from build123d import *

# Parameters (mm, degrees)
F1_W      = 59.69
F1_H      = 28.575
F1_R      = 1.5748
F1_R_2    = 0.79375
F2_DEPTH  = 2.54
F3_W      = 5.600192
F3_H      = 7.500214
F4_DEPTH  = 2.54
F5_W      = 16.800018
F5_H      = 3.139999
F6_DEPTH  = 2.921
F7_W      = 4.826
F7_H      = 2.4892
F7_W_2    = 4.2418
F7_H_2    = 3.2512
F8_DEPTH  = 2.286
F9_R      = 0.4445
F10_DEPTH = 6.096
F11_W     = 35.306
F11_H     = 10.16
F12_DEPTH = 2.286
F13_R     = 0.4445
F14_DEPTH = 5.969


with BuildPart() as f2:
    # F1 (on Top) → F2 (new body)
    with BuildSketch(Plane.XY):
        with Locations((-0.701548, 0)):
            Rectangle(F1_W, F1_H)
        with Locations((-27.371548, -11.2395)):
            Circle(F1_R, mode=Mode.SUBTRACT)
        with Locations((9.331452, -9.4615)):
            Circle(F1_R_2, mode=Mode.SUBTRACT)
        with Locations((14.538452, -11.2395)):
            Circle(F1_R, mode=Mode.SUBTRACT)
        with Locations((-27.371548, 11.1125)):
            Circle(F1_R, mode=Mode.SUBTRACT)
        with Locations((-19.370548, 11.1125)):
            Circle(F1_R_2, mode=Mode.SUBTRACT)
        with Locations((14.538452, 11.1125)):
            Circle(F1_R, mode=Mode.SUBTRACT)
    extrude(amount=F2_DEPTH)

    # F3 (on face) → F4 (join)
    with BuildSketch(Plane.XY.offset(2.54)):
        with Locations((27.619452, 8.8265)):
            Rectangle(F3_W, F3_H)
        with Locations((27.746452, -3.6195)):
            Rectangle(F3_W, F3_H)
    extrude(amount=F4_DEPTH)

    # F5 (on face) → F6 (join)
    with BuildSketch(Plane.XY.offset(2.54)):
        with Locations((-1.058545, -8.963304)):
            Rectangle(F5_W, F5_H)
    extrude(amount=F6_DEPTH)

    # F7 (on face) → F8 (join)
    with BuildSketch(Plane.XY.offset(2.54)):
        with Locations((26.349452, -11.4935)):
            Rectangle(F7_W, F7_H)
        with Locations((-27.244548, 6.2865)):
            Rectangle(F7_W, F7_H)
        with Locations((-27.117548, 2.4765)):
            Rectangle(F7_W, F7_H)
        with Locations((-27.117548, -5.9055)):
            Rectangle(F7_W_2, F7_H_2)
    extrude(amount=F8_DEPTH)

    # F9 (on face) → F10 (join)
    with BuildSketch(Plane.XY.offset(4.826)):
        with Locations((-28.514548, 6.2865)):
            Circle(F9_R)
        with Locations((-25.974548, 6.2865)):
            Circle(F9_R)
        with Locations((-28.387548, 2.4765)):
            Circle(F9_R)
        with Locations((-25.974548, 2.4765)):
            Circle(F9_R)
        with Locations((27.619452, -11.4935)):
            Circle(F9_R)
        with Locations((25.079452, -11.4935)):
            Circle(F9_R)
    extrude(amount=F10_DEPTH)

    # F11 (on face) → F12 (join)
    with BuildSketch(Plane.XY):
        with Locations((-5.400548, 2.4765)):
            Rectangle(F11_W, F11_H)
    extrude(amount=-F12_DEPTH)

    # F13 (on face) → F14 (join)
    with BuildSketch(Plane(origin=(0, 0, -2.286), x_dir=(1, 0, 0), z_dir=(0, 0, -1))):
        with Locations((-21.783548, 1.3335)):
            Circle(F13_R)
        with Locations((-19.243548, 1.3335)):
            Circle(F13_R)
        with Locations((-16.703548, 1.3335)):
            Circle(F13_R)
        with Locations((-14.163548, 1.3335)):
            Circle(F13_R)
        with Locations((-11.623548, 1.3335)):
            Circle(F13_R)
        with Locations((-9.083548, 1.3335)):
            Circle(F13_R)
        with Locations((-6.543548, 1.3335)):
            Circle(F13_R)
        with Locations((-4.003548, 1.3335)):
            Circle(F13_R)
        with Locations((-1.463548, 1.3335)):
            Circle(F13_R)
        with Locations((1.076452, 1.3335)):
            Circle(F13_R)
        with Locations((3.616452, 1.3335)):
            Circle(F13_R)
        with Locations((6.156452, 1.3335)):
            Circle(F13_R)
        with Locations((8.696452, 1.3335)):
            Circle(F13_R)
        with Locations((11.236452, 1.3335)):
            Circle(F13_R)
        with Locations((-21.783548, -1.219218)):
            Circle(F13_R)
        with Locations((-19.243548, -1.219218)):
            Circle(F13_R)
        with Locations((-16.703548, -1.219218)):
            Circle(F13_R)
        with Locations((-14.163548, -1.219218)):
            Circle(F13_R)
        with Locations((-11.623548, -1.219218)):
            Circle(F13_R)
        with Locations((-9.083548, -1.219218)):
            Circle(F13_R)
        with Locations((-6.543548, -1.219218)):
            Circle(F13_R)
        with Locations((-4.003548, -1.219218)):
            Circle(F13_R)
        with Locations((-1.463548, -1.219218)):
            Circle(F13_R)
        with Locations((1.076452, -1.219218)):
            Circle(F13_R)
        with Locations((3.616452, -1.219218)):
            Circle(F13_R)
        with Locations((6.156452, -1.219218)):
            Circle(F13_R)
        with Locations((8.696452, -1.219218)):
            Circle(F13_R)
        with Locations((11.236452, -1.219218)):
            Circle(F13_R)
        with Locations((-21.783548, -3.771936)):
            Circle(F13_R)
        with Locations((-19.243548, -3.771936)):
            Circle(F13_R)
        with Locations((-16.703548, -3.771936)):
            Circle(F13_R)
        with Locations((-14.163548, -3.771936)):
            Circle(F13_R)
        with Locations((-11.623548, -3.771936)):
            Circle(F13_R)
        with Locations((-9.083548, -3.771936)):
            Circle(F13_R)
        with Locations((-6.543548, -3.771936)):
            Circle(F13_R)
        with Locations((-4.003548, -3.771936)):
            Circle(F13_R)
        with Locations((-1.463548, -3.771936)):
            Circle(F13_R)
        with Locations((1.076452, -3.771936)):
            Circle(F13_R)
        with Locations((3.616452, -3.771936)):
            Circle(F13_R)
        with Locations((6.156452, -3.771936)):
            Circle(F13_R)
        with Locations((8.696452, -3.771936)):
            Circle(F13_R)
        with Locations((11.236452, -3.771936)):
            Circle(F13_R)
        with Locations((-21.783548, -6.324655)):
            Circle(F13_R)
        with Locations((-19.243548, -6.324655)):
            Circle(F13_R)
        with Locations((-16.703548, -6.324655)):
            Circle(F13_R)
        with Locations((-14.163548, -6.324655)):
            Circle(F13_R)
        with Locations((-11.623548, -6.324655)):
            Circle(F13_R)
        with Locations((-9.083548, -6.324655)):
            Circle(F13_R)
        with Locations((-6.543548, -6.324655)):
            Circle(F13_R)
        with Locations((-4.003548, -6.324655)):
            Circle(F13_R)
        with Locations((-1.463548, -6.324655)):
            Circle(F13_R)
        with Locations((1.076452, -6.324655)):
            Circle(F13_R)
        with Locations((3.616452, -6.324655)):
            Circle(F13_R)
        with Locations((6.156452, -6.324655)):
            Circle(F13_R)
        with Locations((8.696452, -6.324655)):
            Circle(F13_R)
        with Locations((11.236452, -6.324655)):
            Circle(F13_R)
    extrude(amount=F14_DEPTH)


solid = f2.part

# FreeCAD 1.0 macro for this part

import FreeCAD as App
import Part
import Sketcher
Q = App.Units.Quantity

doc = App.newDocument("Part")
params = doc.addObject("Spreadsheet::Sheet", "Params")
for row, (alias, value) in enumerate([
    ("sketch1_diameter", "0.124 in"),
    ("sketch1_diameter2", "0.0625 in"),
    ("sketch1_width", "2.35 in"),
    ("sketch1_height", "1.125 in"),
    ("pad1_length", "0.1 in"),
    ("pad2_length", "0.1 in"),
    ("pad3_length", "0.115 in"),
    ("sketch4_width", "0.19 in"),
    ("sketch4_width2", "0.167 in"),
    ("sketch4_height", "0.098 in"),
    ("sketch4_height2", "0.128 in"),
    ("pad4_length", "0.09 in"),
    ("sketch5_diameter", "0.035 in"),
    ("pad5_length", "0.24 in"),
    ("sketch6_height", "0.4 in"),
    ("sketch6_width", "1.39 in"),
    ("pad6_length", "0.09 in"),
    ("sketch7_diameter", "0.035 in"),
    ("pad7_length", "0.235 in"),
], start=1):
    params.set(f"A{row}", alias)
    params.set(f"B{row}", "=" + value)
    params.setAlias(f"B{row}", alias)

body = doc.addObject("PartDesign::Body", "Body")

sketch1 = doc.addObject("Sketcher::SketchObject", "Sketch")
body.addObject(sketch1)
sketch1.AttachmentSupport = (doc.XY_Plane, [""])
sketch1.MapMode = "FlatFace"
sketch1.addGeometry(Part.LineSegment(App.Vector(-30.5, 14.3, 0), App.Vector(-30.5, -14.3, 0)), False)
sketch1.addGeometry(Part.LineSegment(App.Vector(-30.5, -14.3, 0), App.Vector(29.1, -14.3, 0)), False)
sketch1.addGeometry(Part.LineSegment(App.Vector(29.1, -14.3, 0), App.Vector(29.1, 14.3, 0)), False)
sketch1.addGeometry(Part.LineSegment(App.Vector(29.1, 14.3, 0), App.Vector(-30.5, 14.3, 0)), False)
sketch1.addGeometry(Part.Circle(App.Vector(-27.4, -11.2, 0), App.Vector(0, 0, 1), 1.6), False)
sketch1.addGeometry(Part.Circle(App.Vector(14.5, -11.2, 0), App.Vector(0, 0, 1), 1.6), False)
sketch1.addGeometry(Part.Circle(App.Vector(9.3, -9.5, 0), App.Vector(0, 0, 1), 0.8), False)
sketch1.addGeometry(Part.Circle(App.Vector(-27.4, 11.1, 0), App.Vector(0, 0, 1), 1.6), False)
sketch1.addGeometry(Part.Circle(App.Vector(-19.4, 11.1, 0), App.Vector(0, 0, 1), 0.8), False)
sketch1.addGeometry(Part.Circle(App.Vector(14.5, 11.1, 0), App.Vector(0, 0, 1), 1.6), False)
sketch1.addConstraint(Sketcher.Constraint("Coincident", 0, 2, 1, 1))
sketch1.addConstraint(Sketcher.Constraint("Coincident", 1, 2, 2, 1))
sketch1.addConstraint(Sketcher.Constraint("Coincident", 2, 2, 3, 1))
sketch1.addConstraint(Sketcher.Constraint("Coincident", 3, 2, 0, 1))
sketch1.addConstraint(Sketcher.Constraint("Vertical", 0))
sketch1.addConstraint(Sketcher.Constraint("Horizontal", 1))
sketch1.addConstraint(Sketcher.Constraint("Vertical", 2))
sketch1.addConstraint(Sketcher.Constraint("Horizontal", 3))
sketch1.addConstraint(Sketcher.Constraint("Equal", 4, 5))
sketch1.addConstraint(Sketcher.Constraint("Equal", 5, 7))
sketch1.addConstraint(Sketcher.Constraint("Equal", 6, 8))
sketch1.addConstraint(Sketcher.Constraint("Equal", 7, 9))
sketch1.addConstraint(Sketcher.Constraint("Horizontal", 4, 3, 5, 3))
sketch1.addConstraint(Sketcher.Constraint("Horizontal", 7, 3, 8, 3))
sketch1.addConstraint(Sketcher.Constraint("Horizontal", 8, 3, 9, 3))
sketch1.addConstraint(Sketcher.Constraint("Vertical", 4, 3, 7, 3))
sketch1.addConstraint(Sketcher.Constraint("Vertical", 5, 3, 9, 3))
sketch1.addConstraint(Sketcher.Constraint("Diameter", 4, Q("0.124 in")))
sketch1.addConstraint(Sketcher.Constraint("Diameter", 6, Q("0.0625 in")))
sketch1.addConstraint(Sketcher.Constraint("DistanceY", 0, 2, 7, 3, Q("1 in")))
sketch1.addConstraint(Sketcher.Constraint("DistanceX", 1, 1, 1, 2, Q("2.35 in")))
sketch1.addConstraint(Sketcher.Constraint("DistanceY", 0, 2, 0, 1, Q("1.125 in")))
sketch1.addConstraint(Sketcher.Constraint("DistanceX", 4, 3, 5, 3, Q("1.65 in")))
sketch1.addConstraint(Sketcher.Constraint("DistanceY", 5, 3, 6, 3, Q("0.07 in")))
sketch1.addConstraint(Sketcher.Constraint("DistanceY", 4, 3, 7, 3, Q("0.88 in")))
sketch1.addConstraint(Sketcher.Constraint("DistanceX", 8, 3, 6, 3, Q("1.13 in")))
sketch1.addConstraint(Sketcher.Constraint("DistanceX", 0, 2, 8, 3, Q("0.44 in")))
sketch1.addConstraint(Sketcher.Constraint("DistanceY", -1, 1, 7, 3, Q("0.4375 in")))
sketch1.addConstraint(Sketcher.Constraint("DistanceX", 6, 3, 5, 3, Q("0.205 in")))
sketch1.addConstraint(Sketcher.Constraint("DistanceX", 4, 3, -1, 1, 27.371548))
sketch1.setExpression("Constraints[17]", "Params.sketch1_diameter")
sketch1.setExpression("Constraints[18]", "Params.sketch1_diameter2")
sketch1.setExpression("Constraints[20]", "Params.sketch1_width")
sketch1.setExpression("Constraints[21]", "Params.sketch1_height")
pad1 = doc.addObject("PartDesign::Pad", "Pad")
body.addObject(pad1)
pad1.Profile = sketch1
pad1.setExpression("Length", "Params.pad1_length")

sketch2 = doc.addObject("Sketcher::SketchObject", "Sketch001")
body.addObject(sketch2)
sketch2.AttachmentSupport = (doc.XY_Plane, [""])
sketch2.MapMode = "FlatFace"
sketch2.AttachmentOffset = App.Placement(App.Vector(0, 0, 0.1 * 25.4), App.Rotation())
sketch2.addGeometry(Part.LineSegment(App.Vector(25, 13, 0), App.Vector(25, 5, 0)), False)
sketch2.addGeometry(Part.LineSegment(App.Vector(25, 5, 0), App.Vector(30, 5, 0)), False)
sketch2.addGeometry(Part.LineSegment(App.Vector(30, 5, 0), App.Vector(30, 13, 0)), False)
sketch2.addGeometry(Part.LineSegment(App.Vector(30, 13, 0), App.Vector(25, 13, 0)), False)
sketch2.addGeometry(Part.LineSegment(App.Vector(25, 0, 0), App.Vector(25, -7, 0)), False)
sketch2.addGeometry(Part.LineSegment(App.Vector(25, -7, 0), App.Vector(31, -7, 0)), False)
sketch2.addGeometry(Part.LineSegment(App.Vector(31, -7, 0), App.Vector(31, 0, 0)), False)
sketch2.addGeometry(Part.LineSegment(App.Vector(31, 0, 0), App.Vector(25, 0, 0)), False)
sketch2.addConstraint(Sketcher.Constraint("Coincident", 0, 2, 1, 1))
sketch2.addConstraint(Sketcher.Constraint("Coincident", 1, 2, 2, 1))
sketch2.addConstraint(Sketcher.Constraint("Coincident", 2, 2, 3, 1))
sketch2.addConstraint(Sketcher.Constraint("Coincident", 3, 2, 0, 1))
sketch2.addConstraint(Sketcher.Constraint("Coincident", 4, 2, 5, 1))
sketch2.addConstraint(Sketcher.Constraint("Coincident", 5, 2, 6, 1))
sketch2.addConstraint(Sketcher.Constraint("Coincident", 6, 2, 7, 1))
sketch2.addConstraint(Sketcher.Constraint("Coincident", 7, 2, 4, 1))
sketch2.addConstraint(Sketcher.Constraint("Vertical", 0))
sketch2.addConstraint(Sketcher.Constraint("Horizontal", 1))
sketch2.addConstraint(Sketcher.Constraint("Vertical", 2))
sketch2.addConstraint(Sketcher.Constraint("Horizontal", 3))
sketch2.addConstraint(Sketcher.Constraint("Vertical", 4))
sketch2.addConstraint(Sketcher.Constraint("Horizontal", 5))
sketch2.addConstraint(Sketcher.Constraint("Vertical", 6))
sketch2.addConstraint(Sketcher.Constraint("Horizontal", 7))
sketch2.addConstraint(Sketcher.Constraint("Equal", 3, 5))
sketch2.addConstraint(Sketcher.Constraint("Equal", 2, 4))
sketch2.addConstraint(Sketcher.Constraint("DistanceY", 4, 2, 0, 2, Q("0.49 in")))
sketch2.addConstraint(Sketcher.Constraint("DistanceX", 0, 2, 4, 2, Q("0.005 in")))
sketch2.addConstraint(Sketcher.Constraint("DistanceX", 1, 1, 1, 2, 5.600192))
sketch2.addConstraint(Sketcher.Constraint("DistanceY", 0, 2, 0, 1, 7.500214))
sketch2.addConstraint(Sketcher.Constraint("DistanceX", -1, 1, 5, 2, 30.546548))
sketch2.addConstraint(Sketcher.Constraint("DistanceY", -1, 1, 0, 2, 5.076393))
pad2 = doc.addObject("PartDesign::Pad", "Pad001")
body.addObject(pad2)
pad2.Profile = sketch2
pad2.setExpression("Length", "Params.pad2_length")

sketch3 = doc.addObject("Sketcher::SketchObject", "Sketch002")
body.addObject(sketch3)
sketch3.AttachmentSupport = (doc.XY_Plane, [""])
sketch3.MapMode = "FlatFace"
sketch3.AttachmentOffset = App.Placement(App.Vector(0, 0, 0.1 * 25.4), App.Rotation())
sketch3.addGeometry(Part.LineSegment(App.Vector(-9.5, -7.4, 0), App.Vector(-9.5, -10.5, 0)), False)
sketch3.addGeometry(Part.LineSegment(App.Vector(-9.5, -10.5, 0), App.Vector(7.3, -10.5, 0)), False)
sketch3.addGeometry(Part.LineSegment(App.Vector(7.3, -10.5, 0), App.Vector(7.3, -7.4, 0)), False)
sketch3.addGeometry(Part.LineSegment(App.Vector(7.3, -7.4, 0), App.Vector(-9.5, -7.4, 0)), False)
sketch3.addConstraint(Sketcher.Constraint("Coincident", 0, 2, 1, 1))
sketch3.addConstraint(Sketcher.Constraint("Coincident", 1, 2, 2, 1))
sketch3.addConstraint(Sketcher.Constraint("Coincident", 2, 2, 3, 1))
sketch3.addConstraint(Sketcher.Constraint("Coincident", 3, 2, 0, 1))
sketch3.addConstraint(Sketcher.Constraint("Vertical", 0))
sketch3.addConstraint(Sketcher.Constraint("Horizontal", 1))
sketch3.addConstraint(Sketcher.Constraint("Vertical", 2))
sketch3.addConstraint(Sketcher.Constraint("Horizontal", 3))
sketch3.addConstraint(Sketcher.Constraint("DistanceY", 0, 2, 0, 1, 3.139999))
sketch3.addConstraint(Sketcher.Constraint("DistanceX", 1, 1, 1, 2, 16.800018))
sketch3.addConstraint(Sketcher.Constraint("DistanceX", 0, 2, -1, 1, 9.458554))
sketch3.addConstraint(Sketcher.Constraint("DistanceY", 0, 2, -1, 1, 10.533304))
pad3 = doc.addObject("PartDesign::Pad", "Pad002")
body.addObject(pad3)
pad3.Profile = sketch3
pad3.setExpression("Length", "Params.pad3_length")

sketch4 = doc.addObject("Sketcher::SketchObject", "Sketch003")
body.addObject(sketch4)
sketch4.AttachmentSupport = (doc.XY_Plane, [""])
sketch4.MapMode = "FlatFace"
sketch4.AttachmentOffset = App.Placement(App.Vector(0, 0, 0.1 * 25.4), App.Rotation())
sketch4.addGeometry(Part.LineSegment(App.Vector(23.9, -10.2, 0), App.Vector(23.9, -12.7, 0)), False)
sketch4.addGeometry(Part.LineSegment(App.Vector(23.9, -12.7, 0), App.Vector(28.8, -12.7, 0)), False)
sketch4.addGeometry(Part.LineSegment(App.Vector(28.8, -12.7, 0), App.Vector(28.8, -10.2, 0)), False)
sketch4.addGeometry(Part.LineSegment(App.Vector(28.8, -10.2, 0), App.Vector(23.9, -10.2, 0)), False)
sketch4.addGeometry(Part.LineSegment(App.Vector(-29.7, 7.5, 0), App.Vector(-29.7, 5, 0)), False)
sketch4.addGeometry(Part.LineSegment(App.Vector(-29.7, 5, 0), App.Vector(-24.8, 5, 0)), False)
sketch4.addGeometry(Part.LineSegment(App.Vector(-24.8, 5, 0), App.Vector(-24.8, 7.5, 0)), False)
sketch4.addGeometry(Part.LineSegment(App.Vector(-24.8, 7.5, 0), App.Vector(-29.7, 7.5, 0)), False)
sketch4.addGeometry(Part.LineSegment(App.Vector(-29.5, 3.7, 0), App.Vector(-29.5, 1.2, 0)), False)
sketch4.addGeometry(Part.LineSegment(App.Vector(-29.5, 1.2, 0), App.Vector(-24.7, 1.2, 0)), False)
sketch4.addGeometry(Part.LineSegment(App.Vector(-24.7, 1.2, 0), App.Vector(-24.7, 3.7, 0)), False)
sketch4.addGeometry(Part.LineSegment(App.Vector(-24.7, 3.7, 0), App.Vector(-29.5, 3.7, 0)), False)
sketch4.addGeometry(Part.LineSegment(App.Vector(-29.2, -4.3, 0), App.Vector(-29.2, -7.5, 0)), False)
sketch4.addGeometry(Part.LineSegment(App.Vector(-29.2, -7.5, 0), App.Vector(-25, -7.5, 0)), False)
sketch4.addGeometry(Part.LineSegment(App.Vector(-25, -7.5, 0), App.Vector(-25, -4.3, 0)), False)
sketch4.addGeometry(Part.LineSegment(App.Vector(-25, -4.3, 0), App.Vector(-29.2, -4.3, 0)), False)
sketch4.addConstraint(Sketcher.Constraint("Coincident", 0, 2, 1, 1))
sketch4.addConstraint(Sketcher.Constraint("Coincident", 1, 2, 2, 1))
sketch4.addConstraint(Sketcher.Constraint("Coincident", 2, 2, 3, 1))
sketch4.addConstraint(Sketcher.Constraint("Coincident", 3, 2, 0, 1))
sketch4.addConstraint(Sketcher.Constraint("Coincident", 4, 2, 5, 1))
sketch4.addConstraint(Sketcher.Constraint("Coincident", 5, 2, 6, 1))
sketch4.addConstraint(Sketcher.Constraint("Coincident", 6, 2, 7, 1))
sketch4.addConstraint(Sketcher.Constraint("Coincident", 7, 2, 4, 1))
sketch4.addConstraint(Sketcher.Constraint("Coincident", 8, 2, 9, 1))
sketch4.addConstraint(Sketcher.Constraint("Coincident", 9, 2, 10, 1))
sketch4.addConstraint(Sketcher.Constraint("Coincident", 10, 2, 11, 1))
sketch4.addConstraint(Sketcher.Constraint("Coincident", 11, 2, 8, 1))
sketch4.addConstraint(Sketcher.Constraint("Coincident", 12, 2, 13, 1))
sketch4.addConstraint(Sketcher.Constraint("Coincident", 13, 2, 14, 1))
sketch4.addConstraint(Sketcher.Constraint("Coincident", 14, 2, 15, 1))
sketch4.addConstraint(Sketcher.Constraint("Coincident", 15, 2, 12, 1))
sketch4.addConstraint(Sketcher.Constraint("Vertical", 0))
sketch4.addConstraint(Sketcher.Constraint("Horizontal", 1))
sketch4.addConstraint(Sketcher.Constraint("Vertical", 2))
sketch4.addConstraint(Sketcher.Constraint("Horizontal", 3))
sketch4.addConstraint(Sketcher.Constraint("Vertical", 4))
sketch4.addConstraint(Sketcher.Constraint("Horizontal", 5))
sketch4.addConstraint(Sketcher.Constraint("Vertical", 6))
sketch4.addConstraint(Sketcher.Constraint("Horizontal", 7))
sketch4.addConstraint(Sketcher.Constraint("Vertical", 8))
sketch4.addConstraint(Sketcher.Constraint("Horizontal", 9))
sketch4.addConstraint(Sketcher.Constraint("Vertical", 10))
sketch4.addConstraint(Sketcher.Constraint("Horizontal", 11))
sketch4.addConstraint(Sketcher.Constraint("Vertical", 12))
sketch4.addConstraint(Sketcher.Constraint("Horizontal", 13))
sketch4.addConstraint(Sketcher.Constraint("Vertical", 14))
sketch4.addConstraint(Sketcher.Constraint("Horizontal", 15))
sketch4.addConstraint(Sketcher.Constraint("Equal", 3, 5))
sketch4.addConstraint(Sketcher.Constraint("Equal", 7, 9))
sketch4.addConstraint(Sketcher.Constraint("Equal", 2, 4))
sketch4.addConstraint(Sketcher.Constraint("Equal", 6, 8))
sketch4.addConstraint(Sketcher.Constraint("DistanceX", 1, 1, 1, 2, Q("0.19 in")))
sketch4.addConstraint(Sketcher.Constraint("DistanceY", 0, 2, 4, 2, Q("0.7 in")))
sketch4.addConstraint(Sketcher.Constraint("DistanceX", 4, 2, 2, 2, Q("2.3 in")))
sketch4.addConstraint(Sketcher.Constraint("DistanceX", 13, 1, 13, 2, Q("0.167 in")))
sketch4.addConstraint(Sketcher.Constraint("DistanceY", 0, 2, 0, 1, Q("0.098 in")))
sketch4.addConstraint(Sketcher.Constraint("DistanceY", 12, 2, 12, 1, Q("0.128 in")))
sketch4.addConstraint(Sketcher.Constraint("DistanceY", 8, 2, 4, 2, Q("0.15 in")))
sketch4.addConstraint(Sketcher.Constraint("DistanceX", 4, 2, 8, 2, Q("0.005 in")))
sketch4.addConstraint(Sketcher.Constraint("DistanceY", 12, 2, 8, 2, Q("0.345 in")))
sketch4.addConstraint(Sketcher.Constraint("DistanceY", 0, 2, -1, 1, Q("0.5015 in")))
sketch4.addConstraint(Sketcher.Constraint("DistanceX", 8, 2, 12, 2, Q("0.0115 in")))
sketch4.addConstraint(Sketcher.Constraint("DistanceX", -1, 1, 0, 2, 23.936452))
sketch4.setExpression("Constraints[36]", "Params.sketch4_width")
sketch4.setExpression("Constraints[39]", "Params.sketch4_width2")
sketch4.setExpression("Constraints[40]", "Params.sketch4_height")
sketch4.setExpression("Constraints[41]", "Params.sketch4_height2")
pad4 = doc.addObject("PartDesign::Pad", "Pad003")
body.addObject(pad4)
pad4.Profile = sketch4
pad4.setExpression("Length", "Params.pad4_length")

sketch5 = doc.addObject("Sketcher::SketchObject", "Sketch004")
body.addObject(sketch5)
sketch5.AttachmentSupport = (doc.XY_Plane, [""])
sketch5.MapMode = "FlatFace"
sketch5.AttachmentOffset = App.Placement(App.Vector(0, 0, 0.19 * 25.4), App.Rotation())
sketch5.addGeometry(Part.Circle(App.Vector(-28.51, 6.29, 0), App.Vector(0, 0, 1), 0.44), False)
sketch5.addGeometry(Part.Circle(App.Vector(-25.97, 6.29, 0), App.Vector(0, 0, 1), 0.44), False)
sketch5.addGeometry(Part.Circle(App.Vector(-28.39, 2.48, 0), App.Vector(0, 0, 1), 0.44), False)
sketch5.addGeometry(Part.Circle(App.Vector(-25.97, 2.48, 0), App.Vector(0, 0, 1), 0.44), False)
sketch5.addGeometry(Part.Circle(App.Vector(27.62, -11.49, 0), App.Vector(0, 0, 1), 0.44), False)
sketch5.addGeometry(Part.Circle(App.Vector(25.08, -11.49, 0), App.Vector(0, 0, 1), 0.44), False)
sketch5.addConstraint(Sketcher.Constraint("Equal", 0, 1))
sketch5.addConstraint(Sketcher.Constraint("Equal", 1, 2))
sketch5.addConstraint(Sketcher.Constraint("Equal", 2, 3))
sketch5.addConstraint(Sketcher.Constraint("Equal", 3, 4))
sketch5.addConstraint(Sketcher.Constraint("Equal", 4, 5))
sketch5.addConstraint(Sketcher.Constraint("Horizontal", 0, 3, 1, 3))
sketch5.addConstraint(Sketcher.Constraint("Horizontal", 2, 3, 3, 3))
sketch5.addConstraint(Sketcher.Constraint("Horizontal", 4, 3, 5, 3))
sketch5.addConstraint(Sketcher.Constraint("Vertical", 1, 3, 3, 3))
sketch5.addConstraint(Sketcher.Constraint("Diameter", 0, Q("0.035 in")))
sketch5.addConstraint(Sketcher.Constraint("DistanceX", 0, 3, 1, 3, Q("0.1 in")))
sketch5.addConstraint(Sketcher.Constraint("DistanceY", 4, 3, 1, 3, Q("0.7 in")))
sketch5.addConstraint(Sketcher.Constraint("DistanceX", 5, 3, 4, 3, Q("0.1 in")))
sketch5.addConstraint(Sketcher.Constraint("DistanceY", 2, 3, 0, 3, Q("0.15 in")))
sketch5.addConstraint(Sketcher.Constraint("DistanceX", 3, 3, 4, 3, Q("2.11 in")))
sketch5.addConstraint(Sketcher.Constraint("DistanceX", 0, 3, 2, 3, Q("0.005 in")))
sketch5.addConstraint(Sketcher.Constraint("DistanceY", -1, 1, 0, 3, Q("0.2475 in")))
sketch5.addConstraint(Sketcher.Constraint("DistanceX", 0, 3, -1, 1, 28.514548))
sketch5.setExpression("Constraints[9]", "Params.sketch5_diameter")
pad5 = doc.addObject("PartDesign::Pad", "Pad004")
body.addObject(pad5)
pad5.Profile = sketch5
pad5.setExpression("Length", "Params.pad5_length")

sketch6 = doc.addObject("Sketcher::SketchObject", "Sketch005")
body.addObject(sketch6)
sketch6.AttachmentSupport = (doc.XY_Plane, [""])
sketch6.MapMode = "FlatFace"
sketch6.addGeometry(Part.LineSegment(App.Vector(-23, 8, 0), App.Vector(-23, -3, 0)), False)
sketch6.addGeometry(Part.LineSegment(App.Vector(-23, -3, 0), App.Vector(12, -3, 0)), False)
sketch6.addGeometry(Part.LineSegment(App.Vector(12, -3, 0), App.Vector(12, 8, 0)), False)
sketch6.addGeometry(Part.LineSegment(App.Vector(12, 8, 0), App.Vector(-23, 8, 0)), False)
sketch6.addConstraint(Sketcher.Constraint("Coincident", 0, 2, 1, 1))
sketch6.addConstraint(Sketcher.Constraint("Coincident", 1, 2, 2, 1))
sketch6.addConstraint(Sketcher.Constraint("Coincident", 2, 2, 3, 1))
sketch6.addConstraint(Sketcher.Constraint("Coincident", 3, 2, 0, 1))
sketch6.addConstraint(Sketcher.Constraint("Vertical", 0))
sketch6.addConstraint(Sketcher.Constraint("Horizontal", 1))
sketch6.addConstraint(Sketcher.Constraint("Vertical", 2))
sketch6.addConstraint(Sketcher.Constraint("Horizontal", 3))
sketch6.addConstraint(Sketcher.Constraint("DistanceY", 0, 2, 0, 1, Q("0.4 in")))
sketch6.addConstraint(Sketcher.Constraint("DistanceX", 1, 1, 1, 2, Q("1.39 in")))
sketch6.addConstraint(Sketcher.Constraint("DistanceY", 0, 2, -1, 1, Q("0.1025 in")))
sketch6.addConstraint(Sketcher.Constraint("DistanceX", 0, 2, -1, 1, 23.053548))
sketch6.setExpression("Constraints[8]", "Params.sketch6_height")
sketch6.setExpression("Constraints[9]", "Params.sketch6_width")
pad6 = doc.addObject("PartDesign::Pad", "Pad005")
body.addObject(pad6)
pad6.Profile = sketch6
pad6.setExpression("Length", "Params.pad6_length")
pad6.Reversed = True

sketch7 = doc.addObject("Sketcher::SketchObject", "Sketch006")
body.addObject(sketch7)
sketch7.AttachmentSupport = (doc.XY_Plane, [""])
sketch7.MapMode = "FlatFace"
sketch7.AttachmentOffset = App.Placement(App.Vector(0, 0, -0.09 * 25.4), App.Rotation())
sketch7.addGeometry(Part.Circle(App.Vector(-21.78, -1.33, 0), App.Vector(0, 0, 1), 0.44), False)
sketch7.addGeometry(Part.Circle(App.Vector(-19.24, -1.33, 0), App.Vector(0, 0, 1), 0.44), False)
sketch7.addGeometry(Part.Circle(App.Vector(-16.7, -1.33, 0), App.Vector(0, 0, 1), 0.44), False)
sketch7.addGeometry(Part.Circle(App.Vector(-14.16, -1.33, 0), App.Vector(0, 0, 1), 0.44), False)
sketch7.addGeometry(Part.Circle(App.Vector(-11.62, -1.33, 0), App.Vector(0, 0, 1), 0.44), False)
sketch7.addGeometry(Part.Circle(App.Vector(-9.08, -1.33, 0), App.Vector(0, 0, 1), 0.44), False)
sketch7.addGeometry(Part.Circle(App.Vector(-6.54, -1.33, 0), App.Vector(0, 0, 1), 0.44), False)
sketch7.addGeometry(Part.Circle(App.Vector(-4, -1.33, 0), App.Vector(0, 0, 1), 0.44), False)
sketch7.addGeometry(Part.Circle(App.Vector(-1.46, -1.33, 0), App.Vector(0, 0, 1), 0.44), False)
sketch7.addGeometry(Part.Circle(App.Vector(1.08, -1.33, 0), App.Vector(0, 0, 1), 0.44), False)
sketch7.addGeometry(Part.Circle(App.Vector(3.62, -1.33, 0), App.Vector(0, 0, 1), 0.44), False)
sketch7.addGeometry(Part.Circle(App.Vector(6.16, -1.33, 0), App.Vector(0, 0, 1), 0.44), False)
sketch7.addGeometry(Part.Circle(App.Vector(8.7, -1.33, 0), App.Vector(0, 0, 1), 0.44), False)
sketch7.addGeometry(Part.Circle(App.Vector(11.24, -1.33, 0), App.Vector(0, 0, 1), 0.44), False)
sketch7.addGeometry(Part.Circle(App.Vector(-21.78, 1.22, 0), App.Vector(0, 0, 1), 0.44), False)
sketch7.addGeometry(Part.Circle(App.Vector(-19.24, 1.22, 0), App.Vector(0, 0, 1), 0.44), False)
sketch7.addGeometry(Part.Circle(App.Vector(-16.7, 1.22, 0), App.Vector(0, 0, 1), 0.44), False)
sketch7.addGeometry(Part.Circle(App.Vector(-14.16, 1.22, 0), App.Vector(0, 0, 1), 0.44), False)
sketch7.addGeometry(Part.Circle(App.Vector(-11.62, 1.22, 0), App.Vector(0, 0, 1), 0.44), False)
sketch7.addGeometry(Part.Circle(App.Vector(-9.08, 1.22, 0), App.Vector(0, 0, 1), 0.44), False)
sketch7.addGeometry(Part.Circle(App.Vector(-6.54, 1.22, 0), App.Vector(0, 0, 1), 0.44), False)
sketch7.addGeometry(Part.Circle(App.Vector(-4, 1.22, 0), App.Vector(0, 0, 1), 0.44), False)
sketch7.addGeometry(Part.Circle(App.Vector(-1.46, 1.22, 0), App.Vector(0, 0, 1), 0.44), False)
sketch7.addGeometry(Part.Circle(App.Vector(1.08, 1.22, 0), App.Vector(0, 0, 1), 0.44), False)
sketch7.addGeometry(Part.Circle(App.Vector(3.62, 1.22, 0), App.Vector(0, 0, 1), 0.44), False)
sketch7.addGeometry(Part.Circle(App.Vector(6.16, 1.22, 0), App.Vector(0, 0, 1), 0.44), False)
sketch7.addGeometry(Part.Circle(App.Vector(8.7, 1.22, 0), App.Vector(0, 0, 1), 0.44), False)
sketch7.addGeometry(Part.Circle(App.Vector(11.24, 1.22, 0), App.Vector(0, 0, 1), 0.44), False)
sketch7.addGeometry(Part.Circle(App.Vector(-21.78, 3.77, 0), App.Vector(0, 0, 1), 0.44), False)
sketch7.addGeometry(Part.Circle(App.Vector(-19.24, 3.77, 0), App.Vector(0, 0, 1), 0.44), False)
sketch7.addGeometry(Part.Circle(App.Vector(-16.7, 3.77, 0), App.Vector(0, 0, 1), 0.44), False)
sketch7.addGeometry(Part.Circle(App.Vector(-14.16, 3.77, 0), App.Vector(0, 0, 1), 0.44), False)
sketch7.addGeometry(Part.Circle(App.Vector(-11.62, 3.77, 0), App.Vector(0, 0, 1), 0.44), False)
sketch7.addGeometry(Part.Circle(App.Vector(-9.08, 3.77, 0), App.Vector(0, 0, 1), 0.44), False)
sketch7.addGeometry(Part.Circle(App.Vector(-6.54, 3.77, 0), App.Vector(0, 0, 1), 0.44), False)
sketch7.addGeometry(Part.Circle(App.Vector(-4, 3.77, 0), App.Vector(0, 0, 1), 0.44), False)
sketch7.addGeometry(Part.Circle(App.Vector(-1.46, 3.77, 0), App.Vector(0, 0, 1), 0.44), False)
sketch7.addGeometry(Part.Circle(App.Vector(1.08, 3.77, 0), App.Vector(0, 0, 1), 0.44), False)
sketch7.addGeometry(Part.Circle(App.Vector(3.62, 3.77, 0), App.Vector(0, 0, 1), 0.44), False)
sketch7.addGeometry(Part.Circle(App.Vector(6.16, 3.77, 0), App.Vector(0, 0, 1), 0.44), False)
sketch7.addGeometry(Part.Circle(App.Vector(8.7, 3.77, 0), App.Vector(0, 0, 1), 0.44), False)
sketch7.addGeometry(Part.Circle(App.Vector(11.24, 3.77, 0), App.Vector(0, 0, 1), 0.44), False)
sketch7.addGeometry(Part.Circle(App.Vector(-21.78, 6.32, 0), App.Vector(0, 0, 1), 0.44), False)
sketch7.addGeometry(Part.Circle(App.Vector(-19.24, 6.32, 0), App.Vector(0, 0, 1), 0.44), False)
sketch7.addGeometry(Part.Circle(App.Vector(-16.7, 6.32, 0), App.Vector(0, 0, 1), 0.44), False)
sketch7.addGeometry(Part.Circle(App.Vector(-14.16, 6.32, 0), App.Vector(0, 0, 1), 0.44), False)
sketch7.addGeometry(Part.Circle(App.Vector(-11.62, 6.32, 0), App.Vector(0, 0, 1), 0.44), False)
sketch7.addGeometry(Part.Circle(App.Vector(-9.08, 6.32, 0), App.Vector(0, 0, 1), 0.44), False)
sketch7.addGeometry(Part.Circle(App.Vector(-6.54, 6.32, 0), App.Vector(0, 0, 1), 0.44), False)
sketch7.addGeometry(Part.Circle(App.Vector(-4, 6.32, 0), App.Vector(0, 0, 1), 0.44), False)
sketch7.addGeometry(Part.Circle(App.Vector(-1.46, 6.32, 0), App.Vector(0, 0, 1), 0.44), False)
sketch7.addGeometry(Part.Circle(App.Vector(1.08, 6.32, 0), App.Vector(0, 0, 1), 0.44), False)
sketch7.addGeometry(Part.Circle(App.Vector(3.62, 6.32, 0), App.Vector(0, 0, 1), 0.44), False)
sketch7.addGeometry(Part.Circle(App.Vector(6.16, 6.32, 0), App.Vector(0, 0, 1), 0.44), False)
sketch7.addGeometry(Part.Circle(App.Vector(8.7, 6.32, 0), App.Vector(0, 0, 1), 0.44), False)
sketch7.addGeometry(Part.Circle(App.Vector(11.24, 6.32, 0), App.Vector(0, 0, 1), 0.44), False)
sketch7.addConstraint(Sketcher.Constraint("Equal", 0, 1))
sketch7.addConstraint(Sketcher.Constraint("Equal", 1, 2))
sketch7.addConstraint(Sketcher.Constraint("Equal", 2, 3))
sketch7.addConstraint(Sketcher.Constraint("Equal", 3, 4))
sketch7.addConstraint(Sketcher.Constraint("Equal", 4, 5))
sketch7.addConstraint(Sketcher.Constraint("Equal", 5, 6))
sketch7.addConstraint(Sketcher.Constraint("Equal", 6, 7))
sketch7.addConstraint(Sketcher.Constraint("Equal", 7, 8))
sketch7.addConstraint(Sketcher.Constraint("Equal", 8, 9))
sketch7.addConstraint(Sketcher.Constraint("Equal", 9, 10))
sketch7.addConstraint(Sketcher.Constraint("Equal", 10, 11))
sketch7.addConstraint(Sketcher.Constraint("Equal", 11, 12))
sketch7.addConstraint(Sketcher.Constraint("Equal", 12, 13))
sketch7.addConstraint(Sketcher.Constraint("Equal", 13, 14))
sketch7.addConstraint(Sketcher.Constraint("Equal", 14, 15))
sketch7.addConstraint(Sketcher.Constraint("Equal", 15, 16))
sketch7.addConstraint(Sketcher.Constraint("Equal", 16, 17))
sketch7.addConstraint(Sketcher.Constraint("Equal", 17, 18))
sketch7.addConstraint(Sketcher.Constraint("Equal", 18, 19))
sketch7.addConstraint(Sketcher.Constraint("Equal", 19, 20))
sketch7.addConstraint(Sketcher.Constraint("Equal", 20, 21))
sketch7.addConstraint(Sketcher.Constraint("Equal", 21, 22))
sketch7.addConstraint(Sketcher.Constraint("Equal", 22, 23))
sketch7.addConstraint(Sketcher.Constraint("Equal", 23, 24))
sketch7.addConstraint(Sketcher.Constraint("Equal", 24, 25))
sketch7.addConstraint(Sketcher.Constraint("Equal", 25, 26))
sketch7.addConstraint(Sketcher.Constraint("Equal", 26, 27))
sketch7.addConstraint(Sketcher.Constraint("Equal", 27, 28))
sketch7.addConstraint(Sketcher.Constraint("Equal", 28, 29))
sketch7.addConstraint(Sketcher.Constraint("Equal", 29, 30))
sketch7.addConstraint(Sketcher.Constraint("Equal", 30, 31))
sketch7.addConstraint(Sketcher.Constraint("Equal", 31, 32))
sketch7.addConstraint(Sketcher.Constraint("Equal", 32, 33))
sketch7.addConstraint(Sketcher.Constraint("Equal", 33, 34))
sketch7.addConstraint(Sketcher.Constraint("Equal", 34, 35))
sketch7.addConstraint(Sketcher.Constraint("Equal", 35, 36))
sketch7.addConstraint(Sketcher.Constraint("Equal", 36, 37))
sketch7.addConstraint(Sketcher.Constraint("Equal", 37, 38))
sketch7.addConstraint(Sketcher.Constraint("Equal", 38, 39))
sketch7.addConstraint(Sketcher.Constraint("Equal", 39, 40))
sketch7.addConstraint(Sketcher.Constraint("Equal", 40, 41))
sketch7.addConstraint(Sketcher.Constraint("Equal", 41, 42))
sketch7.addConstraint(Sketcher.Constraint("Equal", 42, 43))
sketch7.addConstraint(Sketcher.Constraint("Equal", 43, 44))
sketch7.addConstraint(Sketcher.Constraint("Equal", 44, 45))
sketch7.addConstraint(Sketcher.Constraint("Equal", 45, 46))
sketch7.addConstraint(Sketcher.Constraint("Equal", 46, 47))
sketch7.addConstraint(Sketcher.Constraint("Equal", 47, 48))
sketch7.addConstraint(Sketcher.Constraint("Equal", 48, 49))
sketch7.addConstraint(Sketcher.Constraint("Equal", 49, 50))
sketch7.addConstraint(Sketcher.Constraint("Equal", 50, 51))
sketch7.addConstraint(Sketcher.Constraint("Equal", 51, 52))
sketch7.addConstraint(Sketcher.Constraint("Equal", 52, 53))
sketch7.addConstraint(Sketcher.Constraint("Equal", 53, 54))
sketch7.addConstraint(Sketcher.Constraint("Equal", 54, 55))
sketch7.addConstraint(Sketcher.Constraint("Horizontal", 0, 3, 1, 3))
sketch7.addConstraint(Sketcher.Constraint("Horizontal", 1, 3, 2, 3))
sketch7.addConstraint(Sketcher.Constraint("Horizontal", 2, 3, 3, 3))
sketch7.addConstraint(Sketcher.Constraint("Horizontal", 3, 3, 4, 3))
sketch7.addConstraint(Sketcher.Constraint("Horizontal", 4, 3, 5, 3))
sketch7.addConstraint(Sketcher.Constraint("Horizontal", 5, 3, 6, 3))
sketch7.addConstraint(Sketcher.Constraint("Horizontal", 6, 3, 7, 3))
sketch7.addConstraint(Sketcher.Constraint("Horizontal", 7, 3, 8, 3))
sketch7.addConstraint(Sketcher.Constraint("Horizontal", 8, 3, 9, 3))
sketch7.addConstraint(Sketcher.Constraint("Horizontal", 9, 3, 10, 3))
sketch7.addConstraint(Sketcher.Constraint("Horizontal", 10, 3, 11, 3))
sketch7.addConstraint(Sketcher.Constraint("Horizontal", 11, 3, 12, 3))
sketch7.addConstraint(Sketcher.Constraint("Horizontal", 12, 3, 13, 3))
sketch7.addConstraint(Sketcher.Constraint("Horizontal", 14, 3, 15, 3))
sketch7.addConstraint(Sketcher.Constraint("Horizontal", 15, 3, 16, 3))
sketch7.addConstraint(Sketcher.Constraint("Horizontal", 16, 3, 17, 3))
sketch7.addConstraint(Sketcher.Constraint("Horizontal", 17, 3, 18, 3))
sketch7.addConstraint(Sketcher.Constraint("Horizontal", 18, 3, 19, 3))
sketch7.addConstraint(Sketcher.Constraint("Horizontal", 19, 3, 20, 3))
sketch7.addConstraint(Sketcher.Constraint("Horizontal", 20, 3, 21, 3))
sketch7.addConstraint(Sketcher.Constraint("Horizontal", 21, 3, 22, 3))
sketch7.addConstraint(Sketcher.Constraint("Horizontal", 22, 3, 23, 3))
sketch7.addConstraint(Sketcher.Constraint("Horizontal", 23, 3, 24, 3))
sketch7.addConstraint(Sketcher.Constraint("Horizontal", 24, 3, 25, 3))
sketch7.addConstraint(Sketcher.Constraint("Horizontal", 25, 3, 26, 3))
sketch7.addConstraint(Sketcher.Constraint("Horizontal", 26, 3, 27, 3))
sketch7.addConstraint(Sketcher.Constraint("Horizontal", 28, 3, 29, 3))
sketch7.addConstraint(Sketcher.Constraint("Horizontal", 29, 3, 30, 3))
sketch7.addConstraint(Sketcher.Constraint("Horizontal", 30, 3, 31, 3))
sketch7.addConstraint(Sketcher.Constraint("Horizontal", 31, 3, 32, 3))
sketch7.addConstraint(Sketcher.Constraint("Horizontal", 32, 3, 33, 3))
sketch7.addConstraint(Sketcher.Constraint("Horizontal", 33, 3, 34, 3))
sketch7.addConstraint(Sketcher.Constraint("Horizontal", 34, 3, 35, 3))
sketch7.addConstraint(Sketcher.Constraint("Horizontal", 35, 3, 36, 3))
sketch7.addConstraint(Sketcher.Constraint("Horizontal", 36, 3, 37, 3))
sketch7.addConstraint(Sketcher.Constraint("Horizontal", 37, 3, 38, 3))
sketch7.addConstraint(Sketcher.Constraint("Horizontal", 38, 3, 39, 3))
sketch7.addConstraint(Sketcher.Constraint("Horizontal", 39, 3, 40, 3))
sketch7.addConstraint(Sketcher.Constraint("Horizontal", 40, 3, 41, 3))
sketch7.addConstraint(Sketcher.Constraint("Horizontal", 42, 3, 43, 3))
sketch7.addConstraint(Sketcher.Constraint("Horizontal", 43, 3, 44, 3))
sketch7.addConstraint(Sketcher.Constraint("Horizontal", 44, 3, 45, 3))
sketch7.addConstraint(Sketcher.Constraint("Horizontal", 45, 3, 46, 3))
sketch7.addConstraint(Sketcher.Constraint("Horizontal", 46, 3, 47, 3))
sketch7.addConstraint(Sketcher.Constraint("Horizontal", 47, 3, 48, 3))
sketch7.addConstraint(Sketcher.Constraint("Horizontal", 48, 3, 49, 3))
sketch7.addConstraint(Sketcher.Constraint("Horizontal", 49, 3, 50, 3))
sketch7.addConstraint(Sketcher.Constraint("Horizontal", 50, 3, 51, 3))
sketch7.addConstraint(Sketcher.Constraint("Horizontal", 51, 3, 52, 3))
sketch7.addConstraint(Sketcher.Constraint("Horizontal", 52, 3, 53, 3))
sketch7.addConstraint(Sketcher.Constraint("Horizontal", 53, 3, 54, 3))
sketch7.addConstraint(Sketcher.Constraint("Horizontal", 54, 3, 55, 3))
sketch7.addConstraint(Sketcher.Constraint("Vertical", 0, 3, 14, 3))
sketch7.addConstraint(Sketcher.Constraint("Vertical", 1, 3, 15, 3))
sketch7.addConstraint(Sketcher.Constraint("Vertical", 2, 3, 16, 3))
sketch7.addConstraint(Sketcher.Constraint("Vertical", 3, 3, 17, 3))
sketch7.addConstraint(Sketcher.Constraint("Vertical", 4, 3, 18, 3))
sketch7.addConstraint(Sketcher.Constraint("Vertical", 5, 3, 19, 3))
sketch7.addConstraint(Sketcher.Constraint("Vertical", 6, 3, 20, 3))
sketch7.addConstraint(Sketcher.Constraint("Vertical", 7, 3, 21, 3))
sketch7.addConstraint(Sketcher.Constraint("Vertical", 8, 3, 22, 3))
sketch7.addConstraint(Sketcher.Constraint("Vertical", 9, 3, 23, 3))
sketch7.addConstraint(Sketcher.Constraint("Vertical", 10, 3, 24, 3))
sketch7.addConstraint(Sketcher.Constraint("Vertical", 11, 3, 25, 3))
sketch7.addConstraint(Sketcher.Constraint("Vertical", 12, 3, 26, 3))
sketch7.addConstraint(Sketcher.Constraint("Vertical", 13, 3, 27, 3))
sketch7.addConstraint(Sketcher.Constraint("Vertical", 14, 3, 28, 3))
sketch7.addConstraint(Sketcher.Constraint("Vertical", 15, 3, 29, 3))
sketch7.addConstraint(Sketcher.Constraint("Vertical", 16, 3, 30, 3))
sketch7.addConstraint(Sketcher.Constraint("Vertical", 17, 3, 31, 3))
sketch7.addConstraint(Sketcher.Constraint("Vertical", 18, 3, 32, 3))
sketch7.addConstraint(Sketcher.Constraint("Vertical", 19, 3, 33, 3))
sketch7.addConstraint(Sketcher.Constraint("Vertical", 20, 3, 34, 3))
sketch7.addConstraint(Sketcher.Constraint("Vertical", 21, 3, 35, 3))
sketch7.addConstraint(Sketcher.Constraint("Vertical", 22, 3, 36, 3))
sketch7.addConstraint(Sketcher.Constraint("Vertical", 23, 3, 37, 3))
sketch7.addConstraint(Sketcher.Constraint("Vertical", 24, 3, 38, 3))
sketch7.addConstraint(Sketcher.Constraint("Vertical", 25, 3, 39, 3))
sketch7.addConstraint(Sketcher.Constraint("Vertical", 26, 3, 40, 3))
sketch7.addConstraint(Sketcher.Constraint("Vertical", 27, 3, 41, 3))
sketch7.addConstraint(Sketcher.Constraint("Vertical", 28, 3, 42, 3))
sketch7.addConstraint(Sketcher.Constraint("Vertical", 29, 3, 43, 3))
sketch7.addConstraint(Sketcher.Constraint("Vertical", 30, 3, 44, 3))
sketch7.addConstraint(Sketcher.Constraint("Vertical", 31, 3, 45, 3))
sketch7.addConstraint(Sketcher.Constraint("Vertical", 32, 3, 46, 3))
sketch7.addConstraint(Sketcher.Constraint("Vertical", 33, 3, 47, 3))
sketch7.addConstraint(Sketcher.Constraint("Vertical", 34, 3, 48, 3))
sketch7.addConstraint(Sketcher.Constraint("Vertical", 35, 3, 49, 3))
sketch7.addConstraint(Sketcher.Constraint("Vertical", 36, 3, 50, 3))
sketch7.addConstraint(Sketcher.Constraint("Vertical", 37, 3, 51, 3))
sketch7.addConstraint(Sketcher.Constraint("Vertical", 38, 3, 52, 3))
sketch7.addConstraint(Sketcher.Constraint("Vertical", 39, 3, 53, 3))
sketch7.addConstraint(Sketcher.Constraint("Vertical", 40, 3, 54, 3))
sketch7.addConstraint(Sketcher.Constraint("Vertical", 41, 3, 55, 3))
sketch7.addConstraint(Sketcher.Constraint("Diameter", 0, Q("0.035 in")))
sketch7.addConstraint(Sketcher.Constraint("DistanceX", 0, 3, 1, 3, Q("0.1 in")))
sketch7.addConstraint(Sketcher.Constraint("DistanceX", 1, 3, 2, 3, Q("0.1 in")))
sketch7.addConstraint(Sketcher.Constraint("DistanceX", 2, 3, 3, 3, Q("0.1 in")))
sketch7.addConstraint(Sketcher.Constraint("DistanceX", 3, 3, 4, 3, Q("0.1 in")))
sketch7.addConstraint(Sketcher.Constraint("DistanceX", 4, 3, 5, 3, Q("0.1 in")))
sketch7.addConstraint(Sketcher.Constraint("DistanceX", 5, 3, 6, 3, Q("0.1 in")))
sketch7.addConstraint(Sketcher.Constraint("DistanceX", 6, 3, 7, 3, Q("0.1 in")))
sketch7.addConstraint(Sketcher.Constraint("DistanceX", 7, 3, 8, 3, Q("0.1 in")))
sketch7.addConstraint(Sketcher.Constraint("DistanceX", 8, 3, 9, 3, Q("0.1 in")))
sketch7.addConstraint(Sketcher.Constraint("DistanceX", 9, 3, 10, 3, Q("0.1 in")))
sketch7.addConstraint(Sketcher.Constraint("DistanceX", 10, 3, 11, 3, Q("0.1 in")))
sketch7.addConstraint(Sketcher.Constraint("DistanceX", 11, 3, 12, 3, Q("0.1 in")))
sketch7.addConstraint(Sketcher.Constraint("DistanceX", 12, 3, 13, 3, Q("0.1 in")))
sketch7.addConstraint(Sketcher.Constraint("DistanceY", 0, 3, -1, 1, Q("0.0525 in")))
sketch7.addConstraint(Sketcher.Constraint("DistanceX", 1, 3, -1, 1, 19.243548))
sketch7.addConstraint(Sketcher.Constraint("DistanceY", 14, 3, 28, 3, 2.552718))
sketch7.addConstraint(Sketcher.Constraint("DistanceY", 28, 3, 42, 3, 2.552719))
sketch7.addConstraint(Sketcher.Constraint("DistanceY", -1, 1, 14, 3, 1.219218))
sketch7.setExpression("Constraints[149]", "Params.sketch7_diameter")
pad7 = doc.addObject("PartDesign::Pad", "Pad006")
body.addObject(pad7)
pad7.Profile = sketch7
pad7.setExpression("Length", "Params.pad7_length")
pad7.Reversed = True

doc.recompute()
